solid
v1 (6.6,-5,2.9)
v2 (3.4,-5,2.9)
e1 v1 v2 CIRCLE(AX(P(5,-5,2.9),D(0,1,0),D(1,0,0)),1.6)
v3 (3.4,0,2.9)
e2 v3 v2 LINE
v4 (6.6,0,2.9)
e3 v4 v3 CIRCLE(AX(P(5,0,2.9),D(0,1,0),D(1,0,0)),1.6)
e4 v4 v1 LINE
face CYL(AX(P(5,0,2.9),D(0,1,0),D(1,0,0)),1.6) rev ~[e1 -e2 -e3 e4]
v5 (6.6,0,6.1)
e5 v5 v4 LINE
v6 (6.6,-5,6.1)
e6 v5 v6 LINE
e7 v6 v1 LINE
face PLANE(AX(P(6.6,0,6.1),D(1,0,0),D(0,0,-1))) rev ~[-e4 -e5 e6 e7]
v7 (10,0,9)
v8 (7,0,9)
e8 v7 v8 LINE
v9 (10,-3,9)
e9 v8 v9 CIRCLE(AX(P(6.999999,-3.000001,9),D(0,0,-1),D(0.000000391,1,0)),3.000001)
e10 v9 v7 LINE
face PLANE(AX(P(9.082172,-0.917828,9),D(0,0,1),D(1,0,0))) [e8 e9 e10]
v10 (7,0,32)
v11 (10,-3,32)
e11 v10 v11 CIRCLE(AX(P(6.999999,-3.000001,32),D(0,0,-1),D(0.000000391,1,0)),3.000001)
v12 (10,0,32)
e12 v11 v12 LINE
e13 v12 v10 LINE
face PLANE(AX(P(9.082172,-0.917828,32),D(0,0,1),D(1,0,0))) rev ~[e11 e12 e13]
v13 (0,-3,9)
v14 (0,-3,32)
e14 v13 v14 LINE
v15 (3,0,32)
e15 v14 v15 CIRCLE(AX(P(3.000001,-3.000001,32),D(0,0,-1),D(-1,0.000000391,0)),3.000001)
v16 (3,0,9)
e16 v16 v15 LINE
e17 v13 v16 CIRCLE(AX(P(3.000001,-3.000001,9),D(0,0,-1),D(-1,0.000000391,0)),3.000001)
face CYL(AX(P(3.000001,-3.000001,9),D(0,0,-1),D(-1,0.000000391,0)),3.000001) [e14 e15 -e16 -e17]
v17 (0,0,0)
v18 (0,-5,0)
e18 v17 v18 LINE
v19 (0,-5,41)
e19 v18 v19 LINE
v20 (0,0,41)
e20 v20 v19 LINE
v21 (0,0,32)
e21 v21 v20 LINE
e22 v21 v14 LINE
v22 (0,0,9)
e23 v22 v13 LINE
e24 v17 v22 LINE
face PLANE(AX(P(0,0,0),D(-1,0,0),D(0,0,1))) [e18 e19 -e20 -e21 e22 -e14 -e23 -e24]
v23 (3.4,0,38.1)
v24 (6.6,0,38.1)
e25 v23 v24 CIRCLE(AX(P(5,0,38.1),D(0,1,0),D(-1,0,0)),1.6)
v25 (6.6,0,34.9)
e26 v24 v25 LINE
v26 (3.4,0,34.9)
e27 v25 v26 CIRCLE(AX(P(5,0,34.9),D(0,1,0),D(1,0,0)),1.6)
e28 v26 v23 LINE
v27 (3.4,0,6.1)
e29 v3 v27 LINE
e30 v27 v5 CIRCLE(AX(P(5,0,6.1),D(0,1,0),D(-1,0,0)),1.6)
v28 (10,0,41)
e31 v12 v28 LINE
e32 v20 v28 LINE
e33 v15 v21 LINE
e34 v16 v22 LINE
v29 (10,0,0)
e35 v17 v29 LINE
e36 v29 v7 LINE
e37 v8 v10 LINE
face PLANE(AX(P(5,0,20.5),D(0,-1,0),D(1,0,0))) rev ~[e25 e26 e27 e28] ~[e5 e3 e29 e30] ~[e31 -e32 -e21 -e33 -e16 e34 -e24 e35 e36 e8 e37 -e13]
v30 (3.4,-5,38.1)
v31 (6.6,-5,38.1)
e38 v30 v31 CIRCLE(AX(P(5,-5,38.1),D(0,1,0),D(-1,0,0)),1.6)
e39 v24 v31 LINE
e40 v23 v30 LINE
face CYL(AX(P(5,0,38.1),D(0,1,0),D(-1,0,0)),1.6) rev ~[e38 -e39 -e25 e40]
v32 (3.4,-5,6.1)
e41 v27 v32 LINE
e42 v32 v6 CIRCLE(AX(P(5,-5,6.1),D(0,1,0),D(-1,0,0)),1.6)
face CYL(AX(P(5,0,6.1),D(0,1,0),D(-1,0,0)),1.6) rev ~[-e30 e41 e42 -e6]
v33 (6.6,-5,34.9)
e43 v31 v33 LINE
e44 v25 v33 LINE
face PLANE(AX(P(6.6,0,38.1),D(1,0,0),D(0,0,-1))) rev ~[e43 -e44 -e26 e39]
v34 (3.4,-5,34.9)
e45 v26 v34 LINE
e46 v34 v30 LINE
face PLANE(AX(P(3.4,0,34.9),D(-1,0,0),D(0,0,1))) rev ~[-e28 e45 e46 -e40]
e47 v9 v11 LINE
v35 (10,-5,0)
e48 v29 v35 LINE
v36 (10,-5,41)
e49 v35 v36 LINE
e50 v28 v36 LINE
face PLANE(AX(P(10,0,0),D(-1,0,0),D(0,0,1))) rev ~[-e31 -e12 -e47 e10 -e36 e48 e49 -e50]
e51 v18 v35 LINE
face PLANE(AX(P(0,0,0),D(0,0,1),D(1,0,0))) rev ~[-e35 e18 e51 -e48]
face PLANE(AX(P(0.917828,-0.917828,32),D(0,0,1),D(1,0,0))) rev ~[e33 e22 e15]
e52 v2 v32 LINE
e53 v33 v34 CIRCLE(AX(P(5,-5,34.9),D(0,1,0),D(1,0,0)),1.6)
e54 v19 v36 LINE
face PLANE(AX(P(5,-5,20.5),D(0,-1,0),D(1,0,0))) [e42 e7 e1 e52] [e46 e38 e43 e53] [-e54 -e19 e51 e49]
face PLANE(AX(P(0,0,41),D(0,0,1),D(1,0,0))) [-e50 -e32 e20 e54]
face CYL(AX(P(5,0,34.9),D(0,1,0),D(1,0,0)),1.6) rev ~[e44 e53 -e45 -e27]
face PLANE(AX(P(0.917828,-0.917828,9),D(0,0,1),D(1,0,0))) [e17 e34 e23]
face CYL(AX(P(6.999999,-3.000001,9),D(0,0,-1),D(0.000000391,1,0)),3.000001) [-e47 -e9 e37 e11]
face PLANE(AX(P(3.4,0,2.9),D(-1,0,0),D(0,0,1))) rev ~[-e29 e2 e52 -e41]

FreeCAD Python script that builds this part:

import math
import FreeCAD as App
import Part
import Sketcher

doc = App.newDocument("Part")
params = doc.addObject("Spreadsheet::Sheet", "Params")
for row, (alias, value) in enumerate([
    ("sketch1_radius", "1.6 mm"),
    ("sketch1_width", "10 mm"),
    ("sketch1_height", "41 mm"),
    ("sketch1_height2", "3.2 mm"),
    ("pad1_length", "5 mm"),
    ("sketch2_radius", "3.000001 mm"),
    ("pocket1_length", "23 mm"),
], start=1):
    params.set(f"A{row}", alias)
    params.set(f"B{row}", "=" + value)
    params.setAlias(f"B{row}", alias)

body = doc.addObject("PartDesign::Body", "Body")

# Sketch on XZ plane
sketch1 = body.newObject("Sketcher::SketchObject", "Sketch")
sketch1.AttachmentSupport = (doc.getObject("XZ_Plane"), [""])
sketch1.MapMode = "FlatFace"
sketch1.addGeometry([
    Part.LineSegment(App.Vector(0, 41, 0), App.Vector(0, 0, 0)),  # 0
    Part.LineSegment(App.Vector(0, 0, 0), App.Vector(10, 0, 0)),  # 1
    Part.LineSegment(App.Vector(10, 0, 0), App.Vector(10, 41, 0)),  # 2
    Part.LineSegment(App.Vector(10, 41, 0), App.Vector(0, 41, 0)),  # 3
    Part.LineSegment(App.Vector(3.4, 2.9, 0), App.Vector(3.4, 6.1, 0)),  # 4
    Part.ArcOfCircle(Part.Circle(App.Vector(5, 6.1, 0), App.Vector(0, 0, 1), 1.6), math.radians(0), math.radians(180)),  # 5
    Part.LineSegment(App.Vector(6.6, 6.1, 0), App.Vector(6.6, 2.9, 0)),  # 6
    Part.ArcOfCircle(Part.Circle(App.Vector(5, 2.9, 0), App.Vector(0, 0, 1), 1.6), math.radians(180), math.radians(360)),  # 7
    Part.LineSegment(App.Vector(6.6, 38.1, 0), App.Vector(6.6, 34.9, 0)),  # 8
    Part.ArcOfCircle(Part.Circle(App.Vector(5, 34.9, 0), App.Vector(0, 0, 1), 1.6), math.radians(180), math.radians(360)),  # 9
    Part.LineSegment(App.Vector(3.4, 34.9, 0), App.Vector(3.4, 38.1, 0)),  # 10
    Part.ArcOfCircle(Part.Circle(App.Vector(5, 38.1, 0), App.Vector(0, 0, 1), 1.6), math.radians(0), math.radians(180)),  # 11
], False)
sketch1.addConstraint([
    Sketcher.Constraint("Coincident", 0, 2, 1, 1),
    Sketcher.Constraint("Coincident", 1, 2, 2, 1),
    Sketcher.Constraint("Coincident", 2, 2, 3, 1),
    Sketcher.Constraint("Coincident", 3, 2, 0, 1),
    Sketcher.Constraint("Tangent", 4, 2, 5, 2),
    Sketcher.Constraint("Tangent", 5, 1, 6, 1),
    Sketcher.Constraint("Tangent", 6, 2, 7, 2),
    Sketcher.Constraint("Tangent", 7, 1, 4, 1),
    Sketcher.Constraint("Tangent", 8, 2, 9, 2),
    Sketcher.Constraint("Tangent", 9, 1, 10, 1),
    Sketcher.Constraint("Tangent", 10, 2, 11, 2),
    Sketcher.Constraint("Tangent", 11, 1, 8, 1),
    Sketcher.Constraint("Vertical", 0),
    Sketcher.Constraint("Horizontal", 1),
    Sketcher.Constraint("Vertical", 2),
    Sketcher.Constraint("Horizontal", 3),
    Sketcher.Constraint("Vertical", 4),
    Sketcher.Constraint("Vertical", 6),
    Sketcher.Constraint("Vertical", 8),
    Sketcher.Constraint("Vertical", 10),
    Sketcher.Constraint("Coincident", 0, 2, -1, 1),
    Sketcher.Constraint("Equal", 7, 9),
    Sketcher.Constraint("Vertical", 7, 3, 9, 3),
    Sketcher.Constraint("Equal", 6, 8),
    Sketcher.Constraint("Radius", 5, 1.6),
    Sketcher.Constraint("DistanceX", 1, 1, 1, 2, 10.0),
    Sketcher.Constraint("DistanceY", 0, 2, 0, 1, 41.0),
    Sketcher.Constraint("DistanceY", 4, 1, 4, 2, 3.2),
    Sketcher.Constraint("DistanceX", -1, 1, 5, 3, 5.0),
    Sketcher.Constraint("DistanceY", 7, 3, 9, 3, 32.0),
    Sketcher.Constraint("DistanceY", -1, 1, 5, 3, 6.1),
])
sketch1.setExpression("Constraints[24]", "Params.sketch1_radius")
sketch1.setExpression("Constraints[25]", "Params.sketch1_width")
sketch1.setExpression("Constraints[26]", "Params.sketch1_height")
sketch1.setExpression("Constraints[27]", "Params.sketch1_height2")
pad1 = body.newObject("PartDesign::Pad", "Pad")
pad1.Profile = sketch1
pad1.setExpression("Length", "Params.pad1_length")

# Sketch on XY plane
sketch2 = body.newObject("Sketcher::SketchObject", "Sketch001")
sketch2.AttachmentSupport = (doc.getObject("XY_Plane"), [""])
sketch2.MapMode = "FlatFace"
sketch2.AttachmentOffset = App.Placement(App.Vector(0, 0, 9), App.Rotation())
sketch2.addGeometry([
    Part.LineSegment(App.Vector(10, 0, 0), App.Vector(7, 0, 0)),  # 0
    Part.ArcOfCircle(Part.Circle(App.Vector(7, -3, 0), App.Vector(0, 0, 1), 3), math.radians(0), math.radians(90)),  # 1
    Part.LineSegment(App.Vector(10, -3, 0), App.Vector(10, 0, 0)),  # 2
    Part.ArcOfCircle(Part.Circle(App.Vector(3, -3, 0), App.Vector(0, 0, 1), 3), math.radians(90), math.radians(180)),  # 3
    Part.LineSegment(App.Vector(3, 0, 0), App.Vector(0, 0, 0)),  # 4
    Part.LineSegment(App.Vector(0, 0, 0), App.Vector(0, -3, 0)),  # 5
], False)
sketch2.addConstraint([
    Sketcher.Constraint("Tangent", 0, 2, 1, 2),
    Sketcher.Constraint("Tangent", 1, 1, 2, 1),
    Sketcher.Constraint("Coincident", 2, 2, 0, 1),
    Sketcher.Constraint("Tangent", 3, 1, 4, 1),
    Sketcher.Constraint("Coincident", 4, 2, 5, 1),
    Sketcher.Constraint("Tangent", 5, 2, 3, 2),
    Sketcher.Constraint("Horizontal", 0),
    Sketcher.Constraint("Vertical", 2),
    Sketcher.Constraint("Horizontal", 4),
    Sketcher.Constraint("Vertical", 5),
    Sketcher.Constraint("Coincident", 4, 2, -1, 1),
    Sketcher.Constraint("Equal", 1, 3),
    Sketcher.Constraint("PointOnObject", 0, 2, -1),
    Sketcher.Constraint("Radius", 1, 3.000001),
    Sketcher.Constraint("DistanceX", -1, 1, 1, 3, 6.999999),
])
sketch2.setExpression("Constraints[13]", "Params.sketch2_radius")
pocket1 = body.newObject("PartDesign::Pocket", "Pocket")
pocket1.Profile = sketch2
pocket1.setExpression("Length", "Params.pocket1_length")
pocket1.Reversed = True

doc.recompute()
